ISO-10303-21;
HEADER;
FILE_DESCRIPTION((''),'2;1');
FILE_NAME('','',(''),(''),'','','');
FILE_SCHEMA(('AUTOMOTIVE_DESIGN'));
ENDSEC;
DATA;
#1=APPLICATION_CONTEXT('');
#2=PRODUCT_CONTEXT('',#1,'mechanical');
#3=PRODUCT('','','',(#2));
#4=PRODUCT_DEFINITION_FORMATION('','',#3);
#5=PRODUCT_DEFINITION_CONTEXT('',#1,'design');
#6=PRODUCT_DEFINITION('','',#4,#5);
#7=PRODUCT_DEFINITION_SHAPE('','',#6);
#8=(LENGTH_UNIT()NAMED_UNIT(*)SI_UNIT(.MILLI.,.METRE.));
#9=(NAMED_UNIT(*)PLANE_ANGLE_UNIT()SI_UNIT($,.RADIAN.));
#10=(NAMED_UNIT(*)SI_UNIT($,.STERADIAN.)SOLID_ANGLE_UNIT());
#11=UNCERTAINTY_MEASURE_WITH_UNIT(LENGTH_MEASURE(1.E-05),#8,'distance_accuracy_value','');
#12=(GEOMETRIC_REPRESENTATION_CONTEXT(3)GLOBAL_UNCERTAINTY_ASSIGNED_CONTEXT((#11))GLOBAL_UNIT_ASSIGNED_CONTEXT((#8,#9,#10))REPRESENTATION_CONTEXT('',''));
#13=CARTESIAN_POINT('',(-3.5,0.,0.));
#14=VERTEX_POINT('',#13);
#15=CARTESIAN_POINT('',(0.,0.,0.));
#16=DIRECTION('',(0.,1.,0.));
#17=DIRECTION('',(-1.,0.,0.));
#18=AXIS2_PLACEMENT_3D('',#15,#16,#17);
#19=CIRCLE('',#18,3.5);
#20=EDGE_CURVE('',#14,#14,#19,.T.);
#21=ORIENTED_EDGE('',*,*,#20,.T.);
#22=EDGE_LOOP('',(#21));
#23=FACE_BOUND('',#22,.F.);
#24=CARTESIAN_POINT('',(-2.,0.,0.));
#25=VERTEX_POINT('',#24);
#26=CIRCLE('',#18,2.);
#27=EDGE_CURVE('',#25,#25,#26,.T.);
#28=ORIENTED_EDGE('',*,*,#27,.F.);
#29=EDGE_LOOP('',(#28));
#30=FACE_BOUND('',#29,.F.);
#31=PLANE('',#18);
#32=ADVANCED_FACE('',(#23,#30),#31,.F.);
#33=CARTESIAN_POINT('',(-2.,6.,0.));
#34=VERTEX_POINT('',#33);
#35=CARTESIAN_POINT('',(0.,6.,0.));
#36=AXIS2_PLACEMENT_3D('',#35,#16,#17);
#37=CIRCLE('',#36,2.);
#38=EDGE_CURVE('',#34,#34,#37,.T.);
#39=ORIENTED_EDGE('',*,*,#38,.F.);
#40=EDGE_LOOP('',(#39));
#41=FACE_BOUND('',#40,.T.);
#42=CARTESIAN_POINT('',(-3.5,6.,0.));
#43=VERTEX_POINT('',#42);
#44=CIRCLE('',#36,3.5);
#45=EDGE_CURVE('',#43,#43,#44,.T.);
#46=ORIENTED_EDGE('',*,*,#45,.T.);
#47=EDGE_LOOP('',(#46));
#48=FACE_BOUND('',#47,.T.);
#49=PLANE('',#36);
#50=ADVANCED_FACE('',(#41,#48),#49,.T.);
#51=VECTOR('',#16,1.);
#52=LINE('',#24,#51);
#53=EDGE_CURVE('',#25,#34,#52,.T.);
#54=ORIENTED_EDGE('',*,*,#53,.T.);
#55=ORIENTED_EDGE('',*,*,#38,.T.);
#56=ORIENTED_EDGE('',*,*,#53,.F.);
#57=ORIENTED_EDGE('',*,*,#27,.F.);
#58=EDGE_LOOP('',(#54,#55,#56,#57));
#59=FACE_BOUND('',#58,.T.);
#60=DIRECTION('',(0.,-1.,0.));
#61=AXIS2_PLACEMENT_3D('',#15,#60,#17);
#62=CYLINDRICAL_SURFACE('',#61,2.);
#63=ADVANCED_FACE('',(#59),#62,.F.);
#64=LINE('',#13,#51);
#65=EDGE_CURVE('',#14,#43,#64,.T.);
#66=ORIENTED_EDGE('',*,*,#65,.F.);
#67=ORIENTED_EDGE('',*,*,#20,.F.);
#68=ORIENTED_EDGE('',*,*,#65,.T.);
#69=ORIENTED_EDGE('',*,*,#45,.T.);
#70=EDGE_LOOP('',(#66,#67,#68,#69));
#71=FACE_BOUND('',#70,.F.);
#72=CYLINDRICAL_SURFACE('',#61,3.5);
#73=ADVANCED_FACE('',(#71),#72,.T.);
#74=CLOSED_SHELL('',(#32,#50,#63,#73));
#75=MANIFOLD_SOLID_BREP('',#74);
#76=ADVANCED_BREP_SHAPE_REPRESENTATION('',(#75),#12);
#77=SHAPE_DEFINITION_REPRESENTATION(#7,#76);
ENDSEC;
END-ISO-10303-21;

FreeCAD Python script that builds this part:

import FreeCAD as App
import Part
import Sketcher

V = App.Vector
Q = App.Units.Quantity

doc = App.newDocument("Part")
params = doc.addObject("Spreadsheet::Sheet", "Params")
for row, (alias, value) in enumerate([
    ("sketch1_diameter", "7 mm"),
    ("sketch1_diameter2", "4 mm"),
    ("pad1_length", "6 mm"),
], start=1):
    params.set(f"A{row}", alias)
    params.set(f"B{row}", "=" + value)
    params.setAlias(f"B{row}", alias)

body = doc.addObject("PartDesign::Body", "Body")

# Sketch on XZ plane
sketch1 = body.newObject("Sketcher::SketchObject", "Sketch")
sketch1.AttachmentSupport = (doc.getObject("XZ_Plane"), [""])
sketch1.MapMode = "FlatFace"
sketch1.addGeometry([
    Part.Circle(V(0, 0, 0), V(0, 0, 1), 3.5),
    Part.Circle(V(0, 0, 0), V(0, 0, 1), 2),
], False)
sketch1.addConstraint([
    Sketcher.Constraint("Coincident", 0, 3, -1, 1),
    Sketcher.Constraint("Coincident", 1, 3, -1, 1),
    Sketcher.Constraint("Diameter", 0, Q("7 mm")),
    Sketcher.Constraint("Diameter", 1, Q("4 mm")),
])
sketch1.setExpression("Constraints[2]", "Params.sketch1_diameter")
sketch1.setExpression("Constraints[3]", "Params.sketch1_diameter2")
pad1 = body.newObject("PartDesign::Pad", "Pad")
pad1.Profile = sketch1
pad1.setExpression("Length", "Params.pad1_length")
pad1.Reversed = True

doc.recompute()
